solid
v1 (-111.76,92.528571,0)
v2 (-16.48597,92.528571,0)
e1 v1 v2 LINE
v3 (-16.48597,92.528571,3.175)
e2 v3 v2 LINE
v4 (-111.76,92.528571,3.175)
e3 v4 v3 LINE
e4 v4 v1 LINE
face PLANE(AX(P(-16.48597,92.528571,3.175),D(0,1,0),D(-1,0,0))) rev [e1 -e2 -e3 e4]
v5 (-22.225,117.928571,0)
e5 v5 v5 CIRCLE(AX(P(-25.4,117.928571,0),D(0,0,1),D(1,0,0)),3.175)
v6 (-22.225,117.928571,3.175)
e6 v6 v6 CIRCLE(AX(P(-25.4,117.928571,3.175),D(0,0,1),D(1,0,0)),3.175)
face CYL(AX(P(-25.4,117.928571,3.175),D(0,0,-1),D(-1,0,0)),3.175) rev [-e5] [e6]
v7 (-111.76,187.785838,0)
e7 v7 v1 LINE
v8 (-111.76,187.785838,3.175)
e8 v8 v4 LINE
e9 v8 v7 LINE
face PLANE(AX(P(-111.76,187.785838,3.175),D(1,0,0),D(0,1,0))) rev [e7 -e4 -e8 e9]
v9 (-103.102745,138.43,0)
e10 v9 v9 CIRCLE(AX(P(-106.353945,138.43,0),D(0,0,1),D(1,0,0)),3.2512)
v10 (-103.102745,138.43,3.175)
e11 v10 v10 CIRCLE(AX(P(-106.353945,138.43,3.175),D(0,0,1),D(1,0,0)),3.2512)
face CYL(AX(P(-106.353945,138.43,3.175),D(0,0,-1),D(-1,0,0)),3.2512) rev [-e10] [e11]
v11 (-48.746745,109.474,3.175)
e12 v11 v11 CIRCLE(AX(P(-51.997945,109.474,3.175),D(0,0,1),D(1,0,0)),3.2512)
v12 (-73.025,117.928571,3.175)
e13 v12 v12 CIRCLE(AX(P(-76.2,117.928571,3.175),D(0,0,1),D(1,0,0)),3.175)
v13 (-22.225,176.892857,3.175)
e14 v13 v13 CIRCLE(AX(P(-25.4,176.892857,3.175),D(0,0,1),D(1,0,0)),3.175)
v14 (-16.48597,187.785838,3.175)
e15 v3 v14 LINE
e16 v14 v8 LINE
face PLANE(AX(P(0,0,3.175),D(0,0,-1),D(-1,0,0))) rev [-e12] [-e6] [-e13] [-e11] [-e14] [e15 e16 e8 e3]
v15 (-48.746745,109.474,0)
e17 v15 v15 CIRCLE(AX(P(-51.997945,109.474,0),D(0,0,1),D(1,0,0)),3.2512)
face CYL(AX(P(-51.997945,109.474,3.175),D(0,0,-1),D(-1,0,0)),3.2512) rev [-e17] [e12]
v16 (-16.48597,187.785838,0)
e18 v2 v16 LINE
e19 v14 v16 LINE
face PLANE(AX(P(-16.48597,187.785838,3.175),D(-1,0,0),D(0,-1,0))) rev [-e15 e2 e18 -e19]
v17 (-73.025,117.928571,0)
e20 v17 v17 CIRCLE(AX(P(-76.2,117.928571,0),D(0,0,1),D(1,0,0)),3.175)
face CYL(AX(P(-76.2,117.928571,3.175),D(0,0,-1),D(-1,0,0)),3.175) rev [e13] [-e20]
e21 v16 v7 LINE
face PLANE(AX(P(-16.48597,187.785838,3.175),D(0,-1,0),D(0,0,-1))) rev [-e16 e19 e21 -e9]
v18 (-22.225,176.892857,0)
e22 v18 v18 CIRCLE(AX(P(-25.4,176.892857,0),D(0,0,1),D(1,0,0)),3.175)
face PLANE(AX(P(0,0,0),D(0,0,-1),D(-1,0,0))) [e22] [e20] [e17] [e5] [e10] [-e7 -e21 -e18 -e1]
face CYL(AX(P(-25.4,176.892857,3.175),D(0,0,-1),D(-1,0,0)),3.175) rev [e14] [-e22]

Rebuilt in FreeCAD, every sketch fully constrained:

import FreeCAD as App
import Part
import Sketcher
from FreeCAD import Vector
Q = App.Units.Quantity

doc = App.newDocument("Part")
body = doc.addObject("PartDesign::Body", "Body")

# Sketch on XY plane
sketch1 = doc.addObject("Sketcher::SketchObject", "Sketch")
body.addObject(sketch1)
sketch1.AttachmentSupport = (doc.XY_Plane, [""])
sketch1.MapMode = "FlatFace"
sketch1.addGeometry(Part.LineSegment(Vector(-111.8, 187.8, 0), Vector(-111.8, 92.5, 0)), False)
sketch1.addGeometry(Part.LineSegment(Vector(-111.8, 92.5, 0), Vector(-16.5, 92.5, 0)), False)
sketch1.addGeometry(Part.LineSegment(Vector(-16.5, 92.5, 0), Vector(-16.5, 187.8, 0)), False)
sketch1.addGeometry(Part.LineSegment(Vector(-16.5, 187.8, 0), Vector(-111.8, 187.8, 0)), False)
sketch1.addGeometry(Part.Circle(Vector(-76.2, 117.9, 0), Vector(0, 0, 1), 3.2), False)
sketch1.addGeometry(Part.Circle(Vector(-106.4, 138.4, 0), Vector(0, 0, 1), 3.3), False)
sketch1.addGeometry(Part.Circle(Vector(-52, 109.5, 0), Vector(0, 0, 1), 3.3), False)
sketch1.addGeometry(Part.Circle(Vector(-25.4, 117.9, 0), Vector(0, 0, 1), 3.2), False)
sketch1.addGeometry(Part.Circle(Vector(-25.4, 176.9, 0), Vector(0, 0, 1), 3.2), False)
sketch1.addConstraint(Sketcher.Constraint("Coincident", 0, 2, 1, 1))
sketch1.addConstraint(Sketcher.Constraint("Coincident", 1, 2, 2, 1))
sketch1.addConstraint(Sketcher.Constraint("Coincident", 2, 2, 3, 1))
sketch1.addConstraint(Sketcher.Constraint("Coincident", 3, 2, 0, 1))
sketch1.addConstraint(Sketcher.Constraint("Vertical", 0))
sketch1.addConstraint(Sketcher.Constraint("Horizontal", 1))
sketch1.addConstraint(Sketcher.Constraint("Vertical", 2))
sketch1.addConstraint(Sketcher.Constraint("Horizontal", 3))
sketch1.addConstraint(Sketcher.Constraint("Equal", 5, 6))
sketch1.addConstraint(Sketcher.Constraint("Equal", 4, 7))
sketch1.addConstraint(Sketcher.Constraint("Equal", 7, 8))
sketch1.addConstraint(Sketcher.Constraint("Horizontal", 4, 3, 7, 3))
sketch1.addConstraint(Sketcher.Constraint("Vertical", 7, 3, 8, 3))
sketch1.addConstraint(Sketcher.Constraint("Diameter", 4, Q("0.25 in")))
sketch1.addConstraint(Sketcher.Constraint("Diameter", 5, Q("0.256 in")))
sketch1.addConstraint(Sketcher.Constraint("DistanceX", 4, 3, -1, 1, Q("3 in")))
sketch1.addConstraint(Sketcher.Constraint("DistanceX", 7, 3, -1, 1, Q("1 in")))
sketch1.addConstraint(Sketcher.Constraint("DistanceY", 0, 2, 4, 3, Q("1 in")))
sketch1.addConstraint(Sketcher.Constraint("DistanceX", 0, 2, -1, 1, Q("4.4 in")))
sketch1.addConstraint(Sketcher.Constraint("DistanceY", -1, 1, 5, 3, Q("5.45 in")))
sketch1.addConstraint(Sketcher.Constraint("DistanceY", -1, 1, 6, 3, Q("4.31 in")))
sketch1.addConstraint(Sketcher.Constraint("DistanceX", 5, 3, 6, 3, Q("2.14 in")))
sketch1.addConstraint(Sketcher.Constraint("DistanceX", 1, 1, 1, 2, 95.27403))
sketch1.addConstraint(Sketcher.Constraint("DistanceY", 0, 2, 0, 1, 95.257266))
sketch1.addConstraint(Sketcher.Constraint("DistanceY", -1, 1, 4, 3, 117.928571))
sketch1.addConstraint(Sketcher.Constraint("DistanceY", 8, 3, 2, 2, 10.892981))
sketch1.addConstraint(Sketcher.Constraint("DistanceX", 5, 3, -1, 1, 106.353945))
pad1 = doc.addObject("PartDesign::Pad", "Pad")
body.addObject(pad1)
pad1.Profile = sketch1
pad1.Length = Q("0.125 in")

doc.recompute()
